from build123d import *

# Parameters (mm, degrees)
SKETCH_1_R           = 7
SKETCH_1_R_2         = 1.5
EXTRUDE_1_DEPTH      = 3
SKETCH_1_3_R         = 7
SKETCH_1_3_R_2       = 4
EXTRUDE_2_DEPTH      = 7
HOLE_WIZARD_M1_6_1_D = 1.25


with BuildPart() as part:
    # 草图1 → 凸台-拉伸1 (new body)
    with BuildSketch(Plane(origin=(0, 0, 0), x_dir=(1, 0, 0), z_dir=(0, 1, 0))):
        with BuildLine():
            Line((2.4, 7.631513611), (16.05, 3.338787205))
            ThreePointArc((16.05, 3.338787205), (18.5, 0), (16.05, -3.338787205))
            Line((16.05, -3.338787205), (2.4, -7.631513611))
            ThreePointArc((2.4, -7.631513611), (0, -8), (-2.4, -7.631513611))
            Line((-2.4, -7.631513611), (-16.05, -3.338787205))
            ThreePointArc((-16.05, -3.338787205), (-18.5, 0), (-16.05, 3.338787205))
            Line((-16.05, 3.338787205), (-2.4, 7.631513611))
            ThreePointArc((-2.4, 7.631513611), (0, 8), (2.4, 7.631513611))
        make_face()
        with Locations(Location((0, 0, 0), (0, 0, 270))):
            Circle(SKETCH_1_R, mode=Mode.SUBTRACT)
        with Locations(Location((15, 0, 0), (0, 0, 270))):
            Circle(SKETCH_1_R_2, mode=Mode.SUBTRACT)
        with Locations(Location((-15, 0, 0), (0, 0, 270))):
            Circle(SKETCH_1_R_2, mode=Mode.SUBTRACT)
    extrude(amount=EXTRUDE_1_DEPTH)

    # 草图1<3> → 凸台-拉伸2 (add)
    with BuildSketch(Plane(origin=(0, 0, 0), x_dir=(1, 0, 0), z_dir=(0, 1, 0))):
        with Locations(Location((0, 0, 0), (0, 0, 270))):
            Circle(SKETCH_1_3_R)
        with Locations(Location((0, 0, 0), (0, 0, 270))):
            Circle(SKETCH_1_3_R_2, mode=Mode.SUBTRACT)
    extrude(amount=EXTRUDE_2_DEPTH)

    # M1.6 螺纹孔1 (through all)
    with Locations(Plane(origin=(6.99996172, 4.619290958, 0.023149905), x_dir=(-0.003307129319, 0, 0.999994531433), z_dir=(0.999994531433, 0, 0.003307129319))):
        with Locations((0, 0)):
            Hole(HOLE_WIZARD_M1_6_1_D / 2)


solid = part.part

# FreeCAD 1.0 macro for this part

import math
import FreeCAD as App
import Part
import Sketcher
from FreeCAD import Vector

doc = App.newDocument("Part")
body = doc.addObject("PartDesign::Body", "Body")

# Sketch on XZ plane
sketch1 = body.newObject("Sketcher::SketchObject", "Sketch")
sketch1.AttachmentSupport = (doc.getObject("XZ_Plane"), [""])
sketch1.MapMode = "FlatFace"
sketch1.addGeometry([
    Part.LineSegment(Vector(16.1, -3.3, 0), Vector(2.4, -7.6, 0)),  # 0
    Part.ArcOfCircle(Part.Circle(Vector(0, 0, 0), Vector(0, 0, 1), 8), math.radians(-107), math.radians(-73)),  # 1
    Part.LineSegment(Vector(-2.4, -7.6, 0), Vector(-16.1, -3.3, 0)),  # 2
    Part.ArcOfCircle(Part.Circle(Vector(-15, 0, 0), Vector(0, 0, 1), 3.5), math.radians(107), math.radians(253)),  # 3
    Part.LineSegment(Vector(-16.1, 3.3, 0), Vector(-2.4, 7.6, 0)),  # 4
    Part.ArcOfCircle(Part.Circle(Vector(0, 0, 0), Vector(0, 0, 1), 8), math.radians(73), math.radians(107)),  # 5
    Part.LineSegment(Vector(2.4, 7.6, 0), Vector(16.1, 3.3, 0)),  # 6
    Part.ArcOfCircle(Part.Circle(Vector(15, 0, 0), Vector(0, 0, 1), 3.5), math.radians(-73), math.radians(73)),  # 7
    Part.Circle(Vector(15, 0, 0), Vector(0, 0, 1), 1.5),  # 8
    Part.Circle(Vector(0, 0, 0), Vector(0, 0, 1), 7),  # 9
    Part.Circle(Vector(-15, 0, 0), Vector(0, 0, 1), 1.5),  # 10
], False)
sketch1.addConstraint([
    Sketcher.Constraint("Tangent", 0, 2, 1, 2),
    Sketcher.Constraint("Tangent", 1, 1, 2, 1),
    Sketcher.Constraint("Tangent", 2, 2, 3, 2),
    Sketcher.Constraint("Tangent", 3, 1, 4, 1),
    Sketcher.Constraint("Tangent", 4, 2, 5, 2),
    Sketcher.Constraint("Tangent", 5, 1, 6, 1),
    Sketcher.Constraint("Tangent", 6, 2, 7, 2),
    Sketcher.Constraint("Tangent", 7, 1, 0, 1),
    Sketcher.Constraint("Coincident", 1, 3, -1, 1),
    Sketcher.Constraint("Coincident", 5, 3, -1, 1),
    Sketcher.Constraint("Coincident", 9, 3, -1, 1),
    Sketcher.Constraint("Coincident", 8, 3, 7, 3),
    Sketcher.Constraint("Coincident", 10, 3, 3, 3),
    Sketcher.Constraint("Equal", 1, 5),
    Sketcher.Constraint("Equal", 3, 7),
    Sketcher.Constraint("Equal", 8, 10),
    Sketcher.Constraint("Symmetric", 3, 3, 7, 3, -1, 1),
    Sketcher.Constraint("PointOnObject", 3, 3, -1),
    Sketcher.Constraint("Diameter", 8, 3.0),
    Sketcher.Constraint("Diameter", 9, 14.0),
    Sketcher.Constraint("Radius", 1, 8.0),
    Sketcher.Constraint("Radius", 3, 3.5),
    Sketcher.Constraint("DistanceX", 3, 3, -1, 1, 15.0),
])
pad1 = body.newObject("PartDesign::Pad", "Pad")
pad1.Profile = sketch1
pad1.Length = 3
pad1.Reversed = True

# Sketch on XZ plane
sketch2 = body.newObject("Sketcher::SketchObject", "Sketch001")
sketch2.AttachmentSupport = (doc.getObject("XZ_Plane"), [""])
sketch2.MapMode = "FlatFace"
sketch2.addGeometry([
    Part.Circle(Vector(0, 0, 0), Vector(0, 0, 1), 7),
    Part.Circle(Vector(0, 0, 0), Vector(0, 0, 1), 4),
], False)
sketch2.addConstraint([
    Sketcher.Constraint("Coincident", 0, 3, -1, 1),
    Sketcher.Constraint("Coincident", 1, 3, -1, 1),
    Sketcher.Constraint("Diameter", 0, 14.0),
    Sketcher.Constraint("Diameter", 1, 8.0),
])
pad2 = body.newObject("PartDesign::Pad", "Pad001")
pad2.Profile = sketch2
pad2.Length = 7
pad2.Reversed = True

# Sketch on an angled plane
sketch3 = body.newObject("Sketcher::SketchObject", "Sketch002")
sketch3.Placement = App.Placement(Vector(6.999962, 0, 0.02315), App.Rotation(Vector(-0.003307129, 0, 0.999994531), Vector(0, -0.999999999, 0), Vector(0.999994531, 0, 0.003307129), "ZXY"))
sketch3.addGeometry(Part.Circle(Vector(0, -4.6, 0), Vector(0, 0, 1), 0.6), False)
sketch3.addConstraint([
    Sketcher.Constraint("PointOnObject", 0, 3, -2),
    Sketcher.Constraint("Diameter", 0, 1.25),
    Sketcher.Constraint("DistanceY", 0, 3, -1, 1, 4.619291),
])
doc.recompute()
hole = body.newObject("PartDesign::Hole", "Hole")
hole.Profile = sketch3
hole.ThreadType = "None"
hole.Diameter = 1.25
hole.DepthType = "ThroughAll"

doc.recompute()
